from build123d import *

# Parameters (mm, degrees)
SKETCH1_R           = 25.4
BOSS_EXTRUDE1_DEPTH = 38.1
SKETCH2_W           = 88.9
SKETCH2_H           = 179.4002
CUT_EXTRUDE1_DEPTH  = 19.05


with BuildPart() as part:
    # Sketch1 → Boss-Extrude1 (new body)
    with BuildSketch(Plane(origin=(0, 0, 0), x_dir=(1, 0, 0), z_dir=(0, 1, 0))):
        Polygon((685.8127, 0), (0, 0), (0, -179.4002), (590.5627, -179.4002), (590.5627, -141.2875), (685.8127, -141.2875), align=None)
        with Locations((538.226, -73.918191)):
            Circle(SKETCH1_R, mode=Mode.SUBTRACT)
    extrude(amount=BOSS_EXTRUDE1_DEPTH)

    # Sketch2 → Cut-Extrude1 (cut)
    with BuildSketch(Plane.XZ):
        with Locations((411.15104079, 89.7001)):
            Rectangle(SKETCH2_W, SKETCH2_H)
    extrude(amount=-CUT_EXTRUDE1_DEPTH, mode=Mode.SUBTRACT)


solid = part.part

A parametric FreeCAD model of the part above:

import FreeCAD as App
import Part
import Sketcher
Q = App.Units.Quantity

doc = App.newDocument("Part")
body = doc.addObject("PartDesign::Body", "Body")

# Sketch on XZ plane
sketch1 = doc.addObject("Sketcher::SketchObject", "Sketch")
body.addObject(sketch1)
sketch1.AttachmentSupport = (doc.XZ_Plane, [""])
sketch1.MapMode = "FlatFace"
sketch1.addGeometry([
    Part.LineSegment(App.Vector(686, 0, 0), App.Vector(0, 0, 0)),  # 0
    Part.LineSegment(App.Vector(0, 0, 0), App.Vector(0, 179, 0)),  # 1
    Part.LineSegment(App.Vector(0, 179, 0), App.Vector(591, 179, 0)),  # 2
    Part.LineSegment(App.Vector(591, 179, 0), App.Vector(591, 141, 0)),  # 3
    Part.LineSegment(App.Vector(591, 141, 0), App.Vector(686, 141, 0)),  # 4
    Part.LineSegment(App.Vector(686, 141, 0), App.Vector(686, 0, 0)),  # 5
    Part.Circle(App.Vector(538, 74, 0), App.Vector(0, 0, 1), 25),  # 6
], False)
sketch1.addConstraint([
    Sketcher.Constraint("Coincident", 0, 2, 1, 1),
    Sketcher.Constraint("Coincident", 1, 2, 2, 1),
    Sketcher.Constraint("Coincident", 2, 2, 3, 1),
    Sketcher.Constraint("Coincident", 3, 2, 4, 1),
    Sketcher.Constraint("Coincident", 4, 2, 5, 1),
    Sketcher.Constraint("Coincident", 5, 2, 0, 1),
    Sketcher.Constraint("Horizontal", 0),
    Sketcher.Constraint("Vertical", 1),
    Sketcher.Constraint("Horizontal", 2),
    Sketcher.Constraint("Vertical", 3),
    Sketcher.Constraint("Horizontal", 4),
    Sketcher.Constraint("Vertical", 5),
    Sketcher.Constraint("Coincident", 0, 2, -1, 1),
    Sketcher.Constraint("Diameter", 6, Q("2 in")),
    Sketcher.Constraint("DistanceX", 4, 1, 4, 2, Q("3.75 in")),
    Sketcher.Constraint("DistanceY", 1, 1, 1, 2, Q("7.063 in")),
    Sketcher.Constraint("DistanceY", 5, 2, 5, 1, Q("5.5625 in")),
    Sketcher.Constraint("DistanceX", -1, 1, 6, 3, Q("21.19 in")),
    Sketcher.Constraint("DistanceX", 0, 2, 0, 1, Q("27.0005 in")),
    Sketcher.Constraint("DistanceY", -1, 1, 6, 3, 73.918191),
])
pad1 = doc.addObject("PartDesign::Pad", "Pad")
body.addObject(pad1)
pad1.Profile = sketch1
pad1.Length = Q("1.5 in")
pad1.Reversed = True

# Sketch on XZ plane
sketch2 = doc.addObject("Sketcher::SketchObject", "Sketch001")
body.addObject(sketch2)
sketch2.AttachmentSupport = (doc.XZ_Plane, [""])
sketch2.MapMode = "FlatFace"
sketch2.addGeometry([
    Part.LineSegment(App.Vector(367, 179, 0), App.Vector(367, 0, 0)),
    Part.LineSegment(App.Vector(367, 0, 0), App.Vector(456, 0, 0)),
    Part.LineSegment(App.Vector(456, 0, 0), App.Vector(456, 179, 0)),
    Part.LineSegment(App.Vector(456, 179, 0), App.Vector(367, 179, 0)),
], False)
sketch2.addConstraint([
    Sketcher.Constraint("Coincident", 0, 2, 1, 1),
    Sketcher.Constraint("Coincident", 1, 2, 2, 1),
    Sketcher.Constraint("Coincident", 2, 2, 3, 1),
    Sketcher.Constraint("Coincident", 3, 2, 0, 1),
    Sketcher.Constraint("Vertical", 0),
    Sketcher.Constraint("Horizontal", 1),
    Sketcher.Constraint("Vertical", 2),
    Sketcher.Constraint("Horizontal", 3),
    Sketcher.Constraint("PointOnObject", 0, 2, -1),
    Sketcher.Constraint("DistanceX", 1, 1, 1, 2, Q("3.5 in")),
    Sketcher.Constraint("DistanceY", 0, 2, 0, 1, Q("7.063 in")),
    Sketcher.Constraint("DistanceX", -1, 1, 0, 2, 366.701041),
])
pocket1 = doc.addObject("PartDesign::Pocket", "Pocket")
body.addObject(pocket1)
pocket1.Profile = sketch2
pocket1.Length = Q("0.75 in")

doc.recompute()
